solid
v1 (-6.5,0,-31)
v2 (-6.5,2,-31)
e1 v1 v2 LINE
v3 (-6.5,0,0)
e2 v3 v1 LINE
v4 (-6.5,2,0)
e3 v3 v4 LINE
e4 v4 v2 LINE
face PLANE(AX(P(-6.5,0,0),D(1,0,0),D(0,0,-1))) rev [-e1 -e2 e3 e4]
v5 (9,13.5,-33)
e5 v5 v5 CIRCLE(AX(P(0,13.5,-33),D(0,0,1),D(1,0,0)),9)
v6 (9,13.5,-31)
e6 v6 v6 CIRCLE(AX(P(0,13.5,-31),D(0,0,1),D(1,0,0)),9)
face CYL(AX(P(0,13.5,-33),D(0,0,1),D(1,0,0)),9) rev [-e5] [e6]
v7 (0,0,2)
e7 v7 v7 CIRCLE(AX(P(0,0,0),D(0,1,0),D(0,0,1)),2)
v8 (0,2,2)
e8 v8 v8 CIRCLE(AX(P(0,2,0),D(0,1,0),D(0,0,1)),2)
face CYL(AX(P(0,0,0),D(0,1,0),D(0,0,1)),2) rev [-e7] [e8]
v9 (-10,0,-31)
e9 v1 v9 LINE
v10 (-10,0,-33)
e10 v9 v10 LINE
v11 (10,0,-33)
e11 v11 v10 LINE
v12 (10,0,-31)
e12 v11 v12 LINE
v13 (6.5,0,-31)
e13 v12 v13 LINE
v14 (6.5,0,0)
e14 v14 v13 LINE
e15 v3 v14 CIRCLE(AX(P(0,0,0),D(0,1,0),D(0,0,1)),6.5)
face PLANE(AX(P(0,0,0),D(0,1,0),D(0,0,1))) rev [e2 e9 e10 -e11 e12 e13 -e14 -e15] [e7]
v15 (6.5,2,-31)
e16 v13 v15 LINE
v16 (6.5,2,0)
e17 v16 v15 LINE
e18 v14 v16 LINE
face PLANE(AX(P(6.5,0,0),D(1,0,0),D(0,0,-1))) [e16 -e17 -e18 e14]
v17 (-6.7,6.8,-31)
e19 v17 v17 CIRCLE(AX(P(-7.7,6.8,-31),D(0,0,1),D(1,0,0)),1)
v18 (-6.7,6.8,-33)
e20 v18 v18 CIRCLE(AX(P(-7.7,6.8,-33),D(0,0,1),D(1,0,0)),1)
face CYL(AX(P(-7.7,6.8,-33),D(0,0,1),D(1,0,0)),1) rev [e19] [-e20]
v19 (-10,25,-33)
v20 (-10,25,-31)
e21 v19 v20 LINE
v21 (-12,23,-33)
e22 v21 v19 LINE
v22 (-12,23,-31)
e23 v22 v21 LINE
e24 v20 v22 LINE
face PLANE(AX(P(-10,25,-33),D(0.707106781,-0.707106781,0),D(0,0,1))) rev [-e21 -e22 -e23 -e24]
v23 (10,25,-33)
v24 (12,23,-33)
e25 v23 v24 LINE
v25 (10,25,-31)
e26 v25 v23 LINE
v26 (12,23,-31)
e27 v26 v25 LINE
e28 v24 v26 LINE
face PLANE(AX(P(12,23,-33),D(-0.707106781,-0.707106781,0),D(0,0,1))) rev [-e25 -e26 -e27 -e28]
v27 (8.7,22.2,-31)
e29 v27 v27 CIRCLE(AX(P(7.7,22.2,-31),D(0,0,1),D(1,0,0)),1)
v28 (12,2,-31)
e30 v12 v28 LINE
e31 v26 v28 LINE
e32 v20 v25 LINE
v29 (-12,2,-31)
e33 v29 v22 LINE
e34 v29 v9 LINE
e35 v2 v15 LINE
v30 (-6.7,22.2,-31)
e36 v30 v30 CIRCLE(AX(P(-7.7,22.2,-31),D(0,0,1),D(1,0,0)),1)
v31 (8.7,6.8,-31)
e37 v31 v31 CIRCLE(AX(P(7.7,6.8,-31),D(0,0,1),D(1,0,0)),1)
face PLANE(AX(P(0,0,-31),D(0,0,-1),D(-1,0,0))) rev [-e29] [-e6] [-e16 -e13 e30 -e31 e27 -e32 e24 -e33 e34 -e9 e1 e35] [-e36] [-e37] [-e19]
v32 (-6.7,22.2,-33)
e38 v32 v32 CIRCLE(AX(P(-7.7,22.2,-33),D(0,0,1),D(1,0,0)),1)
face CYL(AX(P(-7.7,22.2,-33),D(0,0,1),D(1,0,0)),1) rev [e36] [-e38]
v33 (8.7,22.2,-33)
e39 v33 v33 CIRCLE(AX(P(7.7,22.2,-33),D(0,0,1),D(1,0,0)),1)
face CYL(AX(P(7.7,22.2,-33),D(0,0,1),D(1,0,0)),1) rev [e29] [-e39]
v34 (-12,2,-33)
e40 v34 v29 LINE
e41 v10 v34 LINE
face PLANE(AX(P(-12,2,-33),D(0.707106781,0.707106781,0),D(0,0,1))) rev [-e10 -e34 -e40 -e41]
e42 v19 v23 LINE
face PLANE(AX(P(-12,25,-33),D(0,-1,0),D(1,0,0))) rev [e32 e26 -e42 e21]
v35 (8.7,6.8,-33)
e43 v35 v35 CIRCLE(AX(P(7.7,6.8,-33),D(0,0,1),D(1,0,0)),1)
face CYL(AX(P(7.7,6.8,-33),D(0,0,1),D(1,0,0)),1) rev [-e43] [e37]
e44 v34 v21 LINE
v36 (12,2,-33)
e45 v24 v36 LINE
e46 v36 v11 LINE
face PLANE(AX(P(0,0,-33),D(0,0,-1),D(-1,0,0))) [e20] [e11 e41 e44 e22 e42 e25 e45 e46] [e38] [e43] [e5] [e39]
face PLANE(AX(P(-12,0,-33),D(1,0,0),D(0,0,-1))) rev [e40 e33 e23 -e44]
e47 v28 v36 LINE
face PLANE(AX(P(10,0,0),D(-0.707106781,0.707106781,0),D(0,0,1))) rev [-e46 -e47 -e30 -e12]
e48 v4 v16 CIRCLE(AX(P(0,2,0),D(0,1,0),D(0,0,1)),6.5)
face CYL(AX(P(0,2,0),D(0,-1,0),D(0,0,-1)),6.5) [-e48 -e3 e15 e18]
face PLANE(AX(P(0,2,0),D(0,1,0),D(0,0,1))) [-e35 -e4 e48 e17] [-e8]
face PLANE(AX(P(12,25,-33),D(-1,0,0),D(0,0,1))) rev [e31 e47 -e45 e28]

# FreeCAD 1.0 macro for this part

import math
import FreeCAD as App
import Part
import Sketcher
from FreeCAD import Vector


def edges_at(feature, points):
    """Names of the edges that pass closest to the given points."""
    edges = feature.Shape.Edges
    near = lambda p: min(range(len(edges)), key=lambda i: edges[i].distToShape(Part.Vertex(*p))[0])
    return sorted({f"Edge{near(p) + 1}" for p in points})


def add_polygon(sketch, points):
    """Adds a closed chain of lines whose ends are joined by coincident constraints."""
    first, n = sketch.GeometryCount, len(points)
    for a, b in zip(points, points[1:] + points[:1]):
        sketch.addGeometry(Part.LineSegment(App.Vector(*a, 0), App.Vector(*b, 0)), False)
    for i in range(n):
        sketch.addConstraint(Sketcher.Constraint("Coincident", first + i, 2, first + (i + 1) % n, 1))

doc = App.newDocument("Part")
params = doc.addObject("Spreadsheet::Sheet", "Params")
for row, (alias, value) in enumerate([
    ("sketch1_diameter", "13 mm"),
    ("pad1_length", "2 mm"),
    ("sketch2_diameter", "4 mm"),
    ("sketch3_radius", "6.5 mm"),
    ("sketch3_height", "31 mm"),
    ("pad2_length", "2 mm"),
    ("sketch4_width", "24 mm"),
    ("sketch4_height", "25 mm"),
    ("pad3_length", "2 mm"),
    ("sketch5_diameter", "18 mm"),
    ("sketch5_diameter2", "2 mm"),
    ("pocket2_length", "2 mm"),
    ("chamfer_size", "2 mm"),
], start=1):
    params.set(f"A{row}", alias)
    params.set(f"B{row}", "=" + value)
    params.setAlias(f"B{row}", alias)

body = doc.addObject("PartDesign::Body", "Body")

# Sketch on XZ plane
sketch1 = body.newObject("Sketcher::SketchObject", "Sketch")
sketch1.AttachmentSupport = (doc.getObject("XZ_Plane"), [""])
sketch1.MapMode = "FlatFace"
sketch1.addGeometry(Part.Circle(Vector(0, 0, 0), Vector(0, 0, 1), 6), False)
sketch1.addConstraint(Sketcher.Constraint("Coincident", 0, 3, -1, 1))
sketch1.addConstraint(Sketcher.Constraint("Diameter", 0, 13.0))
sketch1.setExpression("Constraints[1]", "Params.sketch1_diameter")
pad1 = body.newObject("PartDesign::Pad", "Pad")
pad1.Profile = sketch1
pad1.setExpression("Length", "Params.pad1_length")
pad1.Reversed = True

# Sketch on XZ plane
sketch2 = body.newObject("Sketcher::SketchObject", "Sketch001")
sketch2.AttachmentSupport = (doc.getObject("XZ_Plane"), [""])
sketch2.MapMode = "FlatFace"
sketch2.AttachmentOffset = App.Placement(Vector(0, 0, -2), App.Rotation())
sketch2.addGeometry(Part.Circle(Vector(0, 0, 0), Vector(0, 0, 1), 2), False)
sketch2.addConstraint(Sketcher.Constraint("Coincident", 0, 3, -1, 1))
sketch2.addConstraint(Sketcher.Constraint("Diameter", 0, 4.0))
sketch2.setExpression("Constraints[1]", "Params.sketch2_diameter")
pocket1 = body.newObject("PartDesign::Pocket", "Pocket")
pocket1.Profile = sketch2
pocket1.Type = "ThroughAll"
pocket1.Reversed = True

# Sketch on XZ plane
sketch3 = body.newObject("Sketcher::SketchObject", "Sketch002")
sketch3.AttachmentSupport = (doc.getObject("XZ_Plane"), [""])
sketch3.MapMode = "FlatFace"
sketch3.addGeometry(Part.LineSegment(Vector(6, 0, 0), Vector(6, -31, 0)), False)
sketch3.addGeometry(Part.LineSegment(Vector(6, -31, 0), Vector(-6, -31, 0)), False)
sketch3.addGeometry(Part.LineSegment(Vector(-6, -31, 0), Vector(-6, 0, 0)), False)
sketch3.addGeometry(Part.ArcOfCircle(Part.Circle(Vector(0, 0, 0), Vector(0, 0, 1), 6), math.radians(180), math.radians(360)), False)
sketch3.addConstraint(Sketcher.Constraint("Coincident", 0, 2, 1, 1))
sketch3.addConstraint(Sketcher.Constraint("Coincident", 1, 2, 2, 1))
sketch3.addConstraint(Sketcher.Constraint("Tangent", 2, 2, 3, 1))
sketch3.addConstraint(Sketcher.Constraint("Tangent", 3, 2, 0, 1))
sketch3.addConstraint(Sketcher.Constraint("Vertical", 0))
sketch3.addConstraint(Sketcher.Constraint("Horizontal", 1))
sketch3.addConstraint(Sketcher.Constraint("Vertical", 2))
sketch3.addConstraint(Sketcher.Constraint("Coincident", 3, 3, -1, 1))
sketch3.addConstraint(Sketcher.Constraint("Radius", 3, 6.5))
sketch3.addConstraint(Sketcher.Constraint("DistanceY", 0, 2, 0, 1, 31.0))
sketch3.setExpression("Constraints[8]", "Params.sketch3_radius")
sketch3.setExpression("Constraints[9]", "Params.sketch3_height")
pad2 = body.newObject("PartDesign::Pad", "Pad001")
pad2.Profile = sketch3
pad2.setExpression("Length", "Params.pad2_length")
pad2.Reversed = True

# Sketch on XY plane
sketch4 = body.newObject("Sketcher::SketchObject", "Sketch003")
sketch4.AttachmentSupport = (doc.getObject("XY_Plane"), [""])
sketch4.MapMode = "FlatFace"
sketch4.AttachmentOffset = App.Placement(Vector(0, 0, -31), App.Rotation())
add_polygon(sketch4, [(-12, 0), (-12, 25), (12, 25), (12, 0)])  # lines 0-3
sketch4.addConstraint(Sketcher.Constraint("Vertical", 0))
sketch4.addConstraint(Sketcher.Constraint("Horizontal", 1))
sketch4.addConstraint(Sketcher.Constraint("Vertical", 2))
sketch4.addConstraint(Sketcher.Constraint("Horizontal", 3))
sketch4.addConstraint(Sketcher.Constraint("Symmetric", 2, 2, 3, 2, -1, 1))
sketch4.addConstraint(Sketcher.Constraint("DistanceX", 1, 1, 1, 2, 24.0))
sketch4.addConstraint(Sketcher.Constraint("DistanceY", 0, 1, 0, 2, 25.0))
sketch4.setExpression("Constraints[9]", "Params.sketch4_width")
sketch4.setExpression("Constraints[10]", "Params.sketch4_height")
pad3 = body.newObject("PartDesign::Pad", "Pad002")
pad3.Profile = sketch4
pad3.setExpression("Length", "Params.pad3_length")
pad3.Reversed = True

# Sketch on XY plane
sketch5 = body.newObject("Sketcher::SketchObject", "Sketch004")
sketch5.AttachmentSupport = (doc.getObject("XY_Plane"), [""])
sketch5.MapMode = "FlatFace"
sketch5.AttachmentOffset = App.Placement(Vector(0, 0, -31), App.Rotation())
sketch5.addGeometry(Part.Circle(Vector(0, 13.5, 0), Vector(0, 0, 1), 9), False)
sketch5.addGeometry(Part.Circle(Vector(7.7, 22.2, 0), Vector(0, 0, 1), 1), False)
sketch5.addGeometry(Part.Circle(Vector(-7.7, 22.2, 0), Vector(0, 0, 1), 1), False)
sketch5.addGeometry(Part.Circle(Vector(-7.7, 6.8, 0), Vector(0, 0, 1), 1), False)
sketch5.addGeometry(Part.Circle(Vector(7.7, 6.8, 0), Vector(0, 0, 1), 1), False)
sketch5.addConstraint(Sketcher.Constraint("Equal", 1, 2))
sketch5.addConstraint(Sketcher.Constraint("Equal", 2, 3))
sketch5.addConstraint(Sketcher.Constraint("Equal", 3, 4))
sketch5.addConstraint(Sketcher.Constraint("Symmetric", 1, 3, 2, 3, -2))
sketch5.addConstraint(Sketcher.Constraint("Symmetric", 3, 3, 4, 3, -2))
sketch5.addConstraint(Sketcher.Constraint("PointOnObject", 0, 3, -2))
sketch5.addConstraint(Sketcher.Constraint("Vertical", 2, 3, 3, 3))
sketch5.addConstraint(Sketcher.Constraint("Diameter", 0, 18.0))
sketch5.addConstraint(Sketcher.Constraint("Diameter", 1, 2.0))
sketch5.addConstraint(Sketcher.Constraint("DistanceY", -1, 1, 0, 3, 13.5))
sketch5.addConstraint(Sketcher.Constraint("DistanceX", -1, 1, 1, 3, 7.7))
sketch5.addConstraint(Sketcher.Constraint("DistanceY", -1, 1, 1, 3, 22.2))
sketch5.addConstraint(Sketcher.Constraint("DistanceY", -1, 1, 3, 3, 6.8))
sketch5.setExpression("Constraints[7]", "Params.sketch5_diameter")
sketch5.setExpression("Constraints[8]", "Params.sketch5_diameter2")
pocket2 = body.newObject("PartDesign::Pocket", "Pocket001")
pocket2.Profile = sketch5
pocket2.setExpression("Length", "Params.pocket2_length")
doc.recompute()

chamfer = body.newObject("PartDesign::Chamfer", "Chamfer")
chamfer.Base = (pocket2, edges_at(pocket2, [
    (12, 0, -32),
    (-12, 0, -32),
    (-12, 25, -32),
    (12, 25, -32),
]))
chamfer.setExpression("Size", "Params.chamfer_size")

doc.recompute()
